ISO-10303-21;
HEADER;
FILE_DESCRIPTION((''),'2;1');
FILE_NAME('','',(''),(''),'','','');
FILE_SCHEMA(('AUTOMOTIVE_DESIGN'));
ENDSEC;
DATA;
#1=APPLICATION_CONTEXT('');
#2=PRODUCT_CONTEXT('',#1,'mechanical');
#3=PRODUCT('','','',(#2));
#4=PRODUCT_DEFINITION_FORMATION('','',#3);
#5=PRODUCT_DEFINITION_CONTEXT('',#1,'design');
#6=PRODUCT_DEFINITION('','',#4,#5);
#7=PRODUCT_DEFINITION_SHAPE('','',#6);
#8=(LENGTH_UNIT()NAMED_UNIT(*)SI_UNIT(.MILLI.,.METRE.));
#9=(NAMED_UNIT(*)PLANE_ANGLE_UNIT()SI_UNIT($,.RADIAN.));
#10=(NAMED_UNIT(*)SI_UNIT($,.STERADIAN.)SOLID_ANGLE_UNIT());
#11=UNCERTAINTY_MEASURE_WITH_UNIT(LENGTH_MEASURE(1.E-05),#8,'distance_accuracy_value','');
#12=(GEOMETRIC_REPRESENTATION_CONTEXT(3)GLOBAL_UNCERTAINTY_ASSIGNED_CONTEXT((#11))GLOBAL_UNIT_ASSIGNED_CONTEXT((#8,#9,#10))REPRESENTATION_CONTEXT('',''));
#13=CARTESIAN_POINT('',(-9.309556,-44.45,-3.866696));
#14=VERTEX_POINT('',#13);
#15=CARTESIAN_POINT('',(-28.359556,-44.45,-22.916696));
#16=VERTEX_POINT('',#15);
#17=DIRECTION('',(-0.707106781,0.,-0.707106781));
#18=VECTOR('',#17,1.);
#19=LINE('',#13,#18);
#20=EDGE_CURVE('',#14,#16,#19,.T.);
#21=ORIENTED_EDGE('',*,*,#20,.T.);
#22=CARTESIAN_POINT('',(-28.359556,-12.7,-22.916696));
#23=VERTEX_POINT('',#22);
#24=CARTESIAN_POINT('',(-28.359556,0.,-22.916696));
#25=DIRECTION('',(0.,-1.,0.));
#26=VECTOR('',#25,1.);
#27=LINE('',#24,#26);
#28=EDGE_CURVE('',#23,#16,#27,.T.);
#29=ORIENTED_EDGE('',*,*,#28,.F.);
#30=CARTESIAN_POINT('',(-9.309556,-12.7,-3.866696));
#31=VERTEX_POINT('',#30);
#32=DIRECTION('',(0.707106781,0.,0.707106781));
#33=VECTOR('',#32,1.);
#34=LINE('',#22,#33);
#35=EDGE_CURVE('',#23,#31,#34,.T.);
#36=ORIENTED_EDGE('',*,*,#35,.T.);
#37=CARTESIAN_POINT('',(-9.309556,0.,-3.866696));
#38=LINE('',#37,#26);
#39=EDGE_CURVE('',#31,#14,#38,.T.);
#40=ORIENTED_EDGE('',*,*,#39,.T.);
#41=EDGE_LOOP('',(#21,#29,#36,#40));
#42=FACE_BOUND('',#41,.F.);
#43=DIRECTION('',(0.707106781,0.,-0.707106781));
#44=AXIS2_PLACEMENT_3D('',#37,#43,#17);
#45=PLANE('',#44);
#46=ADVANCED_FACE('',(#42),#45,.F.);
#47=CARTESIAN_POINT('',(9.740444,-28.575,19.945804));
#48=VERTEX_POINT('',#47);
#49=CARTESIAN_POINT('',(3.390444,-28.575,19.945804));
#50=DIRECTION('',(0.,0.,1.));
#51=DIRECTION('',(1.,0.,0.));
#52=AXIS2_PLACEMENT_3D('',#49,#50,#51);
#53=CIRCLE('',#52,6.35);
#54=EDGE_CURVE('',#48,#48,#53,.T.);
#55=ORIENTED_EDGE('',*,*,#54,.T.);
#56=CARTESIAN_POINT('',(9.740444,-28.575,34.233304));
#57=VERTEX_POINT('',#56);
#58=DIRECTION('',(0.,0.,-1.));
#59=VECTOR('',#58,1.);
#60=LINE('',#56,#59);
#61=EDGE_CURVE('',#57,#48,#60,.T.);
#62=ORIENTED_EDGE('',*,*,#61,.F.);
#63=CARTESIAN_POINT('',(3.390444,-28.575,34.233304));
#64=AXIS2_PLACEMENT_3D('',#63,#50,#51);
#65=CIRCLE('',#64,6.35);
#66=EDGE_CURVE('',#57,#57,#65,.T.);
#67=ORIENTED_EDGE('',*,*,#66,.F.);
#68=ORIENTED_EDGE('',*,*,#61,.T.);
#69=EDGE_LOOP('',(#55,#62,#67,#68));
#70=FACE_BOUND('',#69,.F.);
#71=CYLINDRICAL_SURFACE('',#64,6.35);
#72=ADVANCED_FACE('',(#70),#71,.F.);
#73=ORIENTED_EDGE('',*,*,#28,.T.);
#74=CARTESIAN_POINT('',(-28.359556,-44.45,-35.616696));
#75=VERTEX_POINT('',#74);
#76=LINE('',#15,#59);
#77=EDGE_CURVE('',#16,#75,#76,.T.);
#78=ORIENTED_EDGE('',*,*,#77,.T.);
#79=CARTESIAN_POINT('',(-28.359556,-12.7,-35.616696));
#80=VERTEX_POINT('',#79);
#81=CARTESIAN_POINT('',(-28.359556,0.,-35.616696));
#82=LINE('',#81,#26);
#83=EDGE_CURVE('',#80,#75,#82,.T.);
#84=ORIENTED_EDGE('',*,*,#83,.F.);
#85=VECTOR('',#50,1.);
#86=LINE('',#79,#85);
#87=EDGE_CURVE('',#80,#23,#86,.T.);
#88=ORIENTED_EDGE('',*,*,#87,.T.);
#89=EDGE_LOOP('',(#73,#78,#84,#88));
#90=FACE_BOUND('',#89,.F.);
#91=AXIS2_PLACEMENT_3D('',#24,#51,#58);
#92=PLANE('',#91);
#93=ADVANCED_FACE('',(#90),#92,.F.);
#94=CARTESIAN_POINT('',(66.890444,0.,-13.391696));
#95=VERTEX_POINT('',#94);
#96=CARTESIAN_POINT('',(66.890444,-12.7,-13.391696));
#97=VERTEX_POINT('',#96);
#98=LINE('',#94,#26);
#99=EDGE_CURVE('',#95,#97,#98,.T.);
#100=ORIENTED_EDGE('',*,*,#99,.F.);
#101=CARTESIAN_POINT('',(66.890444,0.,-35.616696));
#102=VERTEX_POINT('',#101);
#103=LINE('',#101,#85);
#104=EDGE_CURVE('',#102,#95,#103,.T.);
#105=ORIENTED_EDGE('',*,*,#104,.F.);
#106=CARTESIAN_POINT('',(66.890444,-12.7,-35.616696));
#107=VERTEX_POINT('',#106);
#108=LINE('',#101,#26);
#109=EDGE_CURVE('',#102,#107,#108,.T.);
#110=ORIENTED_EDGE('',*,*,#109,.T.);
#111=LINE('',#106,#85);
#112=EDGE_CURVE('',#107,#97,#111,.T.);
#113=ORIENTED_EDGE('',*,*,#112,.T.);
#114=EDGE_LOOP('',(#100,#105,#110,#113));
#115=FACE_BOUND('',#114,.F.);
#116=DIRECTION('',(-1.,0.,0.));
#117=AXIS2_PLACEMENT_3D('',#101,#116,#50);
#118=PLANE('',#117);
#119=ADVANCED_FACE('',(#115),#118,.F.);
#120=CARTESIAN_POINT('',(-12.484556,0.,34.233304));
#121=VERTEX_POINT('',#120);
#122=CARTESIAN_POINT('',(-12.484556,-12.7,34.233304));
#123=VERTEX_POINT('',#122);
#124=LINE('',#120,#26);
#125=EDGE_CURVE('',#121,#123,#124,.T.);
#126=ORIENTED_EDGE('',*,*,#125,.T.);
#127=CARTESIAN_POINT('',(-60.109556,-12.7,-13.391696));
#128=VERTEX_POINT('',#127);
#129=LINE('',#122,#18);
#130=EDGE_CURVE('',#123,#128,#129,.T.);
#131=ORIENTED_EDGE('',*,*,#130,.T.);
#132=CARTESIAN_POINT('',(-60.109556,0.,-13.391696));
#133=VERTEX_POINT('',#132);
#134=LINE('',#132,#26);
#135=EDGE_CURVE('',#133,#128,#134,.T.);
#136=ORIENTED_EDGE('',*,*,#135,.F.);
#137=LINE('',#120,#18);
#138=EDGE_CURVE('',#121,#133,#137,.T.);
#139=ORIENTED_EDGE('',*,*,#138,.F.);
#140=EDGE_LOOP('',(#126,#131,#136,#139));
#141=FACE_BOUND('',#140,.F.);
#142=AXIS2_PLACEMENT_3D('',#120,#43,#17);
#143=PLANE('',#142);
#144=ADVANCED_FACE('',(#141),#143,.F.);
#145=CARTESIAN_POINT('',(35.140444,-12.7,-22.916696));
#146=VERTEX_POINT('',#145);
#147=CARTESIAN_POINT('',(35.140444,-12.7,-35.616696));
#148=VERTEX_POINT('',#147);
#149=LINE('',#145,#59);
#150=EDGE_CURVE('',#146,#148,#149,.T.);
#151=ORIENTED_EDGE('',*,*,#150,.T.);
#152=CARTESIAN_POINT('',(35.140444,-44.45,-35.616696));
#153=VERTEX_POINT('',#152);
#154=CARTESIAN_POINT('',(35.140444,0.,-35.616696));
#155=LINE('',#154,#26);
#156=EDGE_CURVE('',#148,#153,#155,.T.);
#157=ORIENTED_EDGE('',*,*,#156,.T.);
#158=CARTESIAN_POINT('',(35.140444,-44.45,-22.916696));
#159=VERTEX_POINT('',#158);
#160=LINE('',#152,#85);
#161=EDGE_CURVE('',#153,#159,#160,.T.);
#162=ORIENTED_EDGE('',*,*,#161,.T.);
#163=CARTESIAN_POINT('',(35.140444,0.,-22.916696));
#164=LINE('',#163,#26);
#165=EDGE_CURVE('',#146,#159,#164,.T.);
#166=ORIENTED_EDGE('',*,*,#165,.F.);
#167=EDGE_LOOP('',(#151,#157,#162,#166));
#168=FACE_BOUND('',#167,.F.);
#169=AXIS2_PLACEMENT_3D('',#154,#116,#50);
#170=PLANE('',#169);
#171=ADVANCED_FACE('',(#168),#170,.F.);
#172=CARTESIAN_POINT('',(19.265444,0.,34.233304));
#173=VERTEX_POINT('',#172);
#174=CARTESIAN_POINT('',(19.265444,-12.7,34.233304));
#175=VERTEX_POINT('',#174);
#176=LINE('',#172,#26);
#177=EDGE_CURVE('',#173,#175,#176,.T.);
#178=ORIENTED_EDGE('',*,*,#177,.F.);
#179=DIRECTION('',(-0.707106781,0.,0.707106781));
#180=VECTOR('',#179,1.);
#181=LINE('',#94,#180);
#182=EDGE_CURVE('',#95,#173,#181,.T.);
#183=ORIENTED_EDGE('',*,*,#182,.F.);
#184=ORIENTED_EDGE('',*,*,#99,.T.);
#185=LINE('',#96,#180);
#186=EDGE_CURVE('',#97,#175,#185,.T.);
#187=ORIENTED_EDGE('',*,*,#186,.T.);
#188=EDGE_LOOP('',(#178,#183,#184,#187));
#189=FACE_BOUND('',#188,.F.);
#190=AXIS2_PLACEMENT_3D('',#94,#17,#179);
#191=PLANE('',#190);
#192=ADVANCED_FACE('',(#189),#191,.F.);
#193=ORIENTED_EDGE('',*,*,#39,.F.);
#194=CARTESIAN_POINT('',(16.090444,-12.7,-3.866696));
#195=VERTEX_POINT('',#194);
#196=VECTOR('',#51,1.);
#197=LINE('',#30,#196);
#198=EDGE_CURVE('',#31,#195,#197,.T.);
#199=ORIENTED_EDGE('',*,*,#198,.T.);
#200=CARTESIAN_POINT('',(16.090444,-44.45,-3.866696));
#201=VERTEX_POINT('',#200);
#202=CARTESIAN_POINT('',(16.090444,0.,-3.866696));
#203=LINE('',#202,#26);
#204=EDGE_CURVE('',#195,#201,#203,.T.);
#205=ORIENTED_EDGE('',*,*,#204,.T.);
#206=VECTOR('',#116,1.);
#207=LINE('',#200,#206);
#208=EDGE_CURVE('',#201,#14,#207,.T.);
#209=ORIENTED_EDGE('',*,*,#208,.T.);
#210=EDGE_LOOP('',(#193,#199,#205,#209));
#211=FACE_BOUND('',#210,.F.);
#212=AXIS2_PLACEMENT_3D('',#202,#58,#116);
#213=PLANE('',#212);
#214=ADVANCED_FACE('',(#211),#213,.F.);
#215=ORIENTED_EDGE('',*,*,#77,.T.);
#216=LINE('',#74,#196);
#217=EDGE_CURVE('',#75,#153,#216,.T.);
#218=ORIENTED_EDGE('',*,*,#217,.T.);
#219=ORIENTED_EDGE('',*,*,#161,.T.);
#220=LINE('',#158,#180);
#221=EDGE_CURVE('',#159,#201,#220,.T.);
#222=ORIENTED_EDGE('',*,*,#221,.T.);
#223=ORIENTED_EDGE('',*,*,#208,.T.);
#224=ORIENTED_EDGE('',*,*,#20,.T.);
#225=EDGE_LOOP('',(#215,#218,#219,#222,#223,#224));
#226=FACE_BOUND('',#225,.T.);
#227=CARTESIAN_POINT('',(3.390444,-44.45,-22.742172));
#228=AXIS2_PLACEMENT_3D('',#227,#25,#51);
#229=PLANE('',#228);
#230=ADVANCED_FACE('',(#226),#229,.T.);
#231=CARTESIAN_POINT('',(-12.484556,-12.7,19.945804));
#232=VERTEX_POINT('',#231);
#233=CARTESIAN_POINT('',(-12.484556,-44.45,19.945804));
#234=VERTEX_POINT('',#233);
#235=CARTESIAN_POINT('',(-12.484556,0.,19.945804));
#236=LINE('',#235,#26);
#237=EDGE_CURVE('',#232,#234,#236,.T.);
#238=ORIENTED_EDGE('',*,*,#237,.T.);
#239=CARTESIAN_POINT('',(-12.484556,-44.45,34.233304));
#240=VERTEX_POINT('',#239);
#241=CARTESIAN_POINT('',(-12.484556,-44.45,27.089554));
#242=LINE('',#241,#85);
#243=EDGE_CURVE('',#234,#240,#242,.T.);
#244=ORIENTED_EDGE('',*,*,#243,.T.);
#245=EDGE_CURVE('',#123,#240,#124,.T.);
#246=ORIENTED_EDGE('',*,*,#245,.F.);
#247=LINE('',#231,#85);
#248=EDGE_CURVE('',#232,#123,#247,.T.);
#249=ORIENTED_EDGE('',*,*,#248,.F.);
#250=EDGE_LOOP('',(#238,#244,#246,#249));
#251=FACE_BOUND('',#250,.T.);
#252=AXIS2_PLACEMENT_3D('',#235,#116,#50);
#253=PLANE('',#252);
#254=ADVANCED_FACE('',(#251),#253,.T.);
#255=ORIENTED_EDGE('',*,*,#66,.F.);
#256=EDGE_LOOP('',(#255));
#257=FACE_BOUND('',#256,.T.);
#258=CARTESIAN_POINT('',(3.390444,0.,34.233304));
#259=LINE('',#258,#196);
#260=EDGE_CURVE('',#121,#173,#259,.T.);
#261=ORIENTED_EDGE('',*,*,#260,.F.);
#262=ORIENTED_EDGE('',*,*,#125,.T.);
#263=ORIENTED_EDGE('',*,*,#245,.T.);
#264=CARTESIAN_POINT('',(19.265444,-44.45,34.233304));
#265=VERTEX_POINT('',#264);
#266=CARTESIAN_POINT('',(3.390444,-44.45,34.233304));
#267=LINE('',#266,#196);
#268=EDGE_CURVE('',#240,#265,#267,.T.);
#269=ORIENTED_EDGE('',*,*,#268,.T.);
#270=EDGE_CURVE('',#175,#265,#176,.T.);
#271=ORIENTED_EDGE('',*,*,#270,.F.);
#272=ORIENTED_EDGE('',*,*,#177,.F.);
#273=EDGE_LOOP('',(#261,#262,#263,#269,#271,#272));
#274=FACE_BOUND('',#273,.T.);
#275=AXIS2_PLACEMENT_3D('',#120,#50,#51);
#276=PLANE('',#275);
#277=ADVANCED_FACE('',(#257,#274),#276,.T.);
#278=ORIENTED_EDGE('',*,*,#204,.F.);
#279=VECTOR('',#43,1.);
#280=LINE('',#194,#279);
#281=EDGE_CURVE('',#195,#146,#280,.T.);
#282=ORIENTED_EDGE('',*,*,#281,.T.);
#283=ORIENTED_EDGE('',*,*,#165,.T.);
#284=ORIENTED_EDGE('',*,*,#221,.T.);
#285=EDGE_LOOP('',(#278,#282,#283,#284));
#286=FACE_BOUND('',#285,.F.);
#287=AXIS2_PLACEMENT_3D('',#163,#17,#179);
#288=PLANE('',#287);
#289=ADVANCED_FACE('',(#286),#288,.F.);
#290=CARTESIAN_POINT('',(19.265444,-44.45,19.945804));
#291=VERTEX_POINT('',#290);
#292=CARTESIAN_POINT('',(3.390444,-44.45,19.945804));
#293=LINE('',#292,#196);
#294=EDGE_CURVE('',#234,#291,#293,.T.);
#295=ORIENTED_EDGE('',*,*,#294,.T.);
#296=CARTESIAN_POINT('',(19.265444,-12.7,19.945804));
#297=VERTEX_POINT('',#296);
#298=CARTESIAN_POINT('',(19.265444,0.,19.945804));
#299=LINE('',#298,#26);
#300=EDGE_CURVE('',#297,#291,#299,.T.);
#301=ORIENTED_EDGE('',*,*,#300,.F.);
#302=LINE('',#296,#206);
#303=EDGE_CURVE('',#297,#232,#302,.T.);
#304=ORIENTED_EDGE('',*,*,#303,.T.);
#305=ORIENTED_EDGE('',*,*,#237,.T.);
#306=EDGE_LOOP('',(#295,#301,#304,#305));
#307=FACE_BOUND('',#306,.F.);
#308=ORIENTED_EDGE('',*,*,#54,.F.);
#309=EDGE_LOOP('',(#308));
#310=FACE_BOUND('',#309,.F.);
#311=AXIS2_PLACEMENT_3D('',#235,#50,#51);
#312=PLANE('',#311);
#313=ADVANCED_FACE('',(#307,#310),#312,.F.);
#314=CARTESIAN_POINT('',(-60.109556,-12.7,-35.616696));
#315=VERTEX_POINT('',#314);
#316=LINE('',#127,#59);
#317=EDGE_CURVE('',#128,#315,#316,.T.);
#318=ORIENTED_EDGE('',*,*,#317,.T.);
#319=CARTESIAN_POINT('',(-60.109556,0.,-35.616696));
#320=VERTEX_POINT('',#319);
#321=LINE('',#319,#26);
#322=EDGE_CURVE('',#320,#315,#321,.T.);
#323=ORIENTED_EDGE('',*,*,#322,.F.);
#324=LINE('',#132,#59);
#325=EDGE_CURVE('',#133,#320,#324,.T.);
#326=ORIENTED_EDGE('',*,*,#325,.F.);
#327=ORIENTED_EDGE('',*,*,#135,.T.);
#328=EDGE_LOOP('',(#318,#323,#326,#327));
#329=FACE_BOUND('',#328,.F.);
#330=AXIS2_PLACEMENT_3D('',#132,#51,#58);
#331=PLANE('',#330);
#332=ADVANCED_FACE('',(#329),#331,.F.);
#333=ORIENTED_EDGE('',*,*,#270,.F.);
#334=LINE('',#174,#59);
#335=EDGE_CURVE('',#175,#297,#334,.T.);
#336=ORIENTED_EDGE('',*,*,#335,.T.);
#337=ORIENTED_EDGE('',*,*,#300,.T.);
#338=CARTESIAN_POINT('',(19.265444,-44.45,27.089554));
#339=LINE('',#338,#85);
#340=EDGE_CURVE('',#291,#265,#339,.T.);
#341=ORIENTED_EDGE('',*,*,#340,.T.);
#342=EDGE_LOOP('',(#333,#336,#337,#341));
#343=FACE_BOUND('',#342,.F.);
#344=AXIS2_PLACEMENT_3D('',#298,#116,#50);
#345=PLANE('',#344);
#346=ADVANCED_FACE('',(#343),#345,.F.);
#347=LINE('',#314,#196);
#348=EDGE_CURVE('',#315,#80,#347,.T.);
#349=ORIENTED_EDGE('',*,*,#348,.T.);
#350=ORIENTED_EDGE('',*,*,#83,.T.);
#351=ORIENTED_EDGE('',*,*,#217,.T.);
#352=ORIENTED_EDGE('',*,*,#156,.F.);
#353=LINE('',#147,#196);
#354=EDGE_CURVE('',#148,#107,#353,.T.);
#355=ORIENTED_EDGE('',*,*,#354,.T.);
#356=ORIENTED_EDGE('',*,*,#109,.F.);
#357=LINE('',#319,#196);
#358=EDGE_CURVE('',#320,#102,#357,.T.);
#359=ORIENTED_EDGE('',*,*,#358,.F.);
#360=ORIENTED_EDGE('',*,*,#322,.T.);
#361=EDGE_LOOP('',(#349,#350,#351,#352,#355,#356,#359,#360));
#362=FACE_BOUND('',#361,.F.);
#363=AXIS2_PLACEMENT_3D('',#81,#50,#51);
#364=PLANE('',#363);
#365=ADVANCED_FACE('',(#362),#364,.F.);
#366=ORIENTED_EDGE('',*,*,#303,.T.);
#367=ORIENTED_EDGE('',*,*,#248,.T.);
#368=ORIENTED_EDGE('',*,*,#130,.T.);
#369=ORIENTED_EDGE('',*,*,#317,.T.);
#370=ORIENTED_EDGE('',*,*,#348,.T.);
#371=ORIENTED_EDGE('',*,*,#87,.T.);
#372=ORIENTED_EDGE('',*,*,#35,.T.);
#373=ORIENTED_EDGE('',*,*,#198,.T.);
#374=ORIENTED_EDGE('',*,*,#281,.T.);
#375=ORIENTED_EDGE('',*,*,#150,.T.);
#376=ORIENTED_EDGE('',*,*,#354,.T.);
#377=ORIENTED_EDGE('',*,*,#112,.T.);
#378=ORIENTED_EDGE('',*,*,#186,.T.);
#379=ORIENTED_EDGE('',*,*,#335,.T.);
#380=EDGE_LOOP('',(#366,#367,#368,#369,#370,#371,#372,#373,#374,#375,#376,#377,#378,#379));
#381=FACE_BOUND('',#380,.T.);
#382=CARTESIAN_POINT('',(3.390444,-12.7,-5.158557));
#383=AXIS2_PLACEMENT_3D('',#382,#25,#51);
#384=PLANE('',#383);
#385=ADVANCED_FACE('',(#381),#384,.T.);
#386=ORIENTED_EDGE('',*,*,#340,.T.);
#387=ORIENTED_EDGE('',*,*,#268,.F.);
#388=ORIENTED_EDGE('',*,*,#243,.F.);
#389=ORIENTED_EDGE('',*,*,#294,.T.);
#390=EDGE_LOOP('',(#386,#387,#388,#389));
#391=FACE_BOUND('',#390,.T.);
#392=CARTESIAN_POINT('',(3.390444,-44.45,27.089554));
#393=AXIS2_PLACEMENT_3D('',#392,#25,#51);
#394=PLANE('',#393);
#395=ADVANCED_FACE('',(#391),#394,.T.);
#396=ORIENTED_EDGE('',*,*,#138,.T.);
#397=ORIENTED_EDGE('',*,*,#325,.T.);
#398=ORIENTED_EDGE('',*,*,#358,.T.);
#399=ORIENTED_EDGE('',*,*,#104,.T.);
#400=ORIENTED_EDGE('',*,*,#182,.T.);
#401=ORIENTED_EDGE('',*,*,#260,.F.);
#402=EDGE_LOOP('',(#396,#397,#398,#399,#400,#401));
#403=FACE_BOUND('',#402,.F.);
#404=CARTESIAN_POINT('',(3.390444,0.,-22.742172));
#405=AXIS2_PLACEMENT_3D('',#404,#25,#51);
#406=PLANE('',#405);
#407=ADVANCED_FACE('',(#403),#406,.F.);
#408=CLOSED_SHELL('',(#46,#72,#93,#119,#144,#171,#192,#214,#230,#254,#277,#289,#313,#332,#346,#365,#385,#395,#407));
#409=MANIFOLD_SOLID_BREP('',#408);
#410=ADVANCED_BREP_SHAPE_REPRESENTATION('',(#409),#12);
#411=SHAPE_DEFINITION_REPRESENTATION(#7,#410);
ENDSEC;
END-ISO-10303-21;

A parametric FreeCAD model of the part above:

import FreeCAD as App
import Part
import Sketcher
Q = App.Units.Quantity


def add_polygon(sketch, points):
    """Adds a closed chain of lines whose ends are joined by coincident constraints."""
    first, n = sketch.GeometryCount, len(points)
    for a, b in zip(points, points[1:] + points[:1]):
        sketch.addGeometry(Part.LineSegment(App.Vector(*a, 0), App.Vector(*b, 0)), False)
    for i in range(n):
        sketch.addConstraint(Sketcher.Constraint("Coincident", first + i, 2, first + (i + 1) % n, 1))

doc = App.newDocument("Part")
body = doc.addObject("PartDesign::Body", "Body")

sketch1 = body.newObject("Sketcher::SketchObject", "Sketch")
sketch1.AttachmentSupport = (doc.getObject("XZ_Plane"), [""])
sketch1.MapMode = "FlatFace"
add_polygon(sketch1, [(-60, -13), (-60, -36), (-28, -36), (-28, -23), (-9, -4), (16, -4), (35, -23), (35, -36), (67, -36), (67, -13), (19, 34), (19, 20), (-12, 20), (-12, 34)])
sketch1.addConstraint([
    Sketcher.Constraint("Vertical", 0),
    Sketcher.Constraint("Horizontal", 1),
    Sketcher.Constraint("Vertical", 2),
    Sketcher.Constraint("Horizontal", 4),
    Sketcher.Constraint("Vertical", 6),
    Sketcher.Constraint("Horizontal", 7),
    Sketcher.Constraint("Vertical", 8),
    Sketcher.Constraint("Vertical", 10),
    Sketcher.Constraint("Horizontal", 11),
    Sketcher.Constraint("Vertical", 12),
    Sketcher.Constraint("Perpendicular", 3, 5),
    Sketcher.Constraint("Parallel", 5, 9),
    Sketcher.Constraint("Perpendicular", 9, 13),
    Sketcher.Constraint("Horizontal", 2, 2, 5, 2),
    Sketcher.Constraint("Horizontal", 1, 2, 6, 2),
    Sketcher.Constraint("Horizontal", 9, 2, 12, 2),
    Sketcher.Constraint("Horizontal", 8, 2, 13, 2),
    Sketcher.Constraint("Equal", 1, 7),
    Sketcher.Constraint("Equal", 7, 11),
    Sketcher.Constraint("Equal", 3, 5),
    Sketcher.Constraint("DistanceX", 4, 1, 4, 2, Q("1 in")),
    Sketcher.Constraint("DistanceY", 2, 1, 2, 2, Q("0.5 in")),
    Sketcher.Constraint("DistanceX", 0, 2, 3, 2, Q("2 in")),
    Sketcher.Constraint("DistanceX", 1, 1, 1, 2, Q("1.25 in")),
    Sketcher.Constraint("DistanceY", 4, 2, 9, 2, Q("1.5 in")),
    Sketcher.Constraint("DistanceY", 10, 2, 10, 1, Q("0.5625 in")),
    Sketcher.Constraint("DistanceX", 0, 2, -1, 1, 60.109556),
    Sketcher.Constraint("DistanceY", 0, 2, -1, 1, 35.616696),
])
pad1 = body.newObject("PartDesign::Pad", "Pad")
pad1.Profile = sketch1
pad1.Length = Q("0.5 in")

sketch2 = body.newObject("Sketcher::SketchObject", "Sketch001")
sketch2.AttachmentSupport = (doc.getObject("XZ_Plane"), [""])
sketch2.MapMode = "FlatFace"
add_polygon(sketch2, [(-28, -23), (-28, -36), (35, -36), (35, -23), (16, -4), (-9, -4)])
add_polygon(sketch2, [(-12, 34), (-12, 20), (19, 20), (19, 34)])
sketch2.addConstraint([
    Sketcher.Constraint("Vertical", 0),
    Sketcher.Constraint("Horizontal", 1),
    Sketcher.Constraint("Vertical", 2),
    Sketcher.Constraint("Horizontal", 4),
    Sketcher.Constraint("Vertical", 6),
    Sketcher.Constraint("Horizontal", 7),
    Sketcher.Constraint("Vertical", 8),
    Sketcher.Constraint("Horizontal", 9),
    Sketcher.Constraint("Perpendicular", 3, 5),
    Sketcher.Constraint("Horizontal", 2, 2, 5, 2),
    Sketcher.Constraint("Equal", 3, 5),
    Sketcher.Constraint("DistanceX", 4, 2, 4, 1, Q("1 in")),
    Sketcher.Constraint("DistanceX", 1, 1, 1, 2, Q("2.5 in")),
    Sketcher.Constraint("DistanceY", 0, 2, 0, 1, Q("0.5 in")),
    Sketcher.Constraint("DistanceX", 7, 1, 7, 2, Q("1.25 in")),
    Sketcher.Constraint("DistanceY", 3, 2, 8, 2, Q("1.5 in")),
    Sketcher.Constraint("DistanceY", 6, 2, 6, 1, Q("0.5625 in")),
    Sketcher.Constraint("DistanceX", 6, 2, 4, 2, Q("0.125 in")),
    Sketcher.Constraint("DistanceX", 0, 2, -1, 1, 28.359556),
    Sketcher.Constraint("DistanceY", 0, 2, -1, 1, 35.616696),
])
pad2 = body.newObject("PartDesign::Pad", "Pad001")
pad2.Profile = sketch2
pad2.Length = Q("1.75 in")

sketch3 = body.newObject("Sketcher::SketchObject", "Sketch002")
sketch3.AttachmentSupport = (doc.getObject("XY_Plane"), [""])
sketch3.MapMode = "FlatFace"
sketch3.AttachmentOffset = App.Placement(App.Vector(0, 0, 34.233304), App.Rotation())
sketch3.addGeometry(Part.Circle(App.Vector(3, -29, 0), App.Vector(0, 0, 1), 6), False)
sketch3.addConstraint([
    Sketcher.Constraint("Diameter", 0, Q("0.5 in")),
    Sketcher.Constraint("DistanceY", 0, 3, -1, 1, Q("1.125 in")),
    Sketcher.Constraint("DistanceX", -1, 1, 0, 3, 3.390444),
])
pocket1 = body.newObject("PartDesign::Pocket", "Pocket")
pocket1.Profile = sketch3
pocket1.Length = Q("1 in")

doc.recompute()
